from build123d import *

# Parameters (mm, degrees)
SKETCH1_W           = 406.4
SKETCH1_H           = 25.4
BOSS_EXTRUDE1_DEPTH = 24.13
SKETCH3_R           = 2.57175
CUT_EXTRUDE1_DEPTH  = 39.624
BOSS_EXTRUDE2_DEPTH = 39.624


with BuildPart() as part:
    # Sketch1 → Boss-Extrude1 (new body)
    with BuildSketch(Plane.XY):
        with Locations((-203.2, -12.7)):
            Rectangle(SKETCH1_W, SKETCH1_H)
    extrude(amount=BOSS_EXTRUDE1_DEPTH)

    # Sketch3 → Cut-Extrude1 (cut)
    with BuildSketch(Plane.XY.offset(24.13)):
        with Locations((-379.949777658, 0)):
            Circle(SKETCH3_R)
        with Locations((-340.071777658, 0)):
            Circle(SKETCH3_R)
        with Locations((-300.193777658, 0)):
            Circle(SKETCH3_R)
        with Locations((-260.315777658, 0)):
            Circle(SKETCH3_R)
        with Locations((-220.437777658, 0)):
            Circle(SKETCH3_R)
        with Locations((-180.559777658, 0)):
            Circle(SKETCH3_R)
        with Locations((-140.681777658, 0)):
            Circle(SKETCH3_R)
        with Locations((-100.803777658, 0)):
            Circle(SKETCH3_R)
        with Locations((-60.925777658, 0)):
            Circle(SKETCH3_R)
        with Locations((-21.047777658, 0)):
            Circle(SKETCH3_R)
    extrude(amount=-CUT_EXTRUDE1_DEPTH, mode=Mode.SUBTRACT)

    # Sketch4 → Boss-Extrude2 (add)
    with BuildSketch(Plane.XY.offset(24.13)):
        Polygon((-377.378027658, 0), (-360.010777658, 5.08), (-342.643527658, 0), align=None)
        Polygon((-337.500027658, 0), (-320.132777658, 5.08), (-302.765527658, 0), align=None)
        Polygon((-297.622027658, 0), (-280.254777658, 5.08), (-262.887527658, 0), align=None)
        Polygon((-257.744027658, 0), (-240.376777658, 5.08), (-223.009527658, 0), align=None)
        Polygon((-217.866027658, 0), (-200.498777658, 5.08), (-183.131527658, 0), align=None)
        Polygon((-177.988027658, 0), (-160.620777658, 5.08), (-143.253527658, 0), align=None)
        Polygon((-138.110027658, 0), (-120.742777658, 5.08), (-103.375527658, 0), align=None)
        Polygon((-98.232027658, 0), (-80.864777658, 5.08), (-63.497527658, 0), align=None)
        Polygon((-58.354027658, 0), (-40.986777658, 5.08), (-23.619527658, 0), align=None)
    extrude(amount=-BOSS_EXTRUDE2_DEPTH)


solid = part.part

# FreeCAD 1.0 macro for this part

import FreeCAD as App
import Part
import Sketcher
Q = App.Units.Quantity


def add_polygon(sketch, points):
    """Adds a closed chain of lines whose ends are joined by coincident constraints."""
    first, n = sketch.GeometryCount, len(points)
    for a, b in zip(points, points[1:] + points[:1]):
        sketch.addGeometry(Part.LineSegment(App.Vector(*a, 0), App.Vector(*b, 0)), False)
    for i in range(n):
        sketch.addConstraint(Sketcher.Constraint("Coincident", first + i, 2, first + (i + 1) % n, 1))

doc = App.newDocument("Part")
body = doc.addObject("PartDesign::Body", "Body")

sketch1 = body.newObject("Sketcher::SketchObject", "Sketch")
sketch1.AttachmentSupport = (doc.getObject("XY_Plane"), [""])
sketch1.MapMode = "FlatFace"
add_polygon(sketch1, [(-406.4, 0), (-406.4, -25.4), (0, -25.4), (0, 0)])
sketch1.addConstraint([
    Sketcher.Constraint("Vertical", 0),
    Sketcher.Constraint("Horizontal", 1),
    Sketcher.Constraint("Vertical", 2),
    Sketcher.Constraint("Horizontal", 3),
    Sketcher.Constraint("Coincident", 2, 2, -1, 1),
    Sketcher.Constraint("DistanceX", 1, 1, 1, 2, Q("16 in")),
    Sketcher.Constraint("DistanceY", 0, 2, 0, 1, Q("1 in")),
])
pad1 = body.newObject("PartDesign::Pad", "Pad")
pad1.Profile = sketch1
pad1.Length = Q("0.95 in")

sketch2 = body.newObject("Sketcher::SketchObject", "Sketch001")
sketch2.AttachmentSupport = (doc.getObject("XY_Plane"), [""])
sketch2.MapMode = "FlatFace"
sketch2.AttachmentOffset = App.Placement(App.Vector(0, 0, 0.95 * 25.4), App.Rotation())
sketch2.addGeometry([
    Part.Circle(App.Vector(-379.949778, 0, 0), App.Vector(0, 0, 1), 2.57175),
    Part.Circle(App.Vector(-340.071778, 0, 0), App.Vector(0, 0, 1), 2.57175),
    Part.Circle(App.Vector(-300.193778, 0, 0), App.Vector(0, 0, 1), 2.57175),
    Part.Circle(App.Vector(-260.315778, 0, 0), App.Vector(0, 0, 1), 2.57175),
    Part.Circle(App.Vector(-220.437778, 0, 0), App.Vector(0, 0, 1), 2.57175),
    Part.Circle(App.Vector(-180.559778, 0, 0), App.Vector(0, 0, 1), 2.57175),
    Part.Circle(App.Vector(-140.681778, 0, 0), App.Vector(0, 0, 1), 2.57175),
    Part.Circle(App.Vector(-100.803778, 0, 0), App.Vector(0, 0, 1), 2.57175),
    Part.Circle(App.Vector(-60.925778, 0, 0), App.Vector(0, 0, 1), 2.57175),
    Part.Circle(App.Vector(-21.047778, 0, 0), App.Vector(0, 0, 1), 2.57175),
], False)
sketch2.addConstraint([
    Sketcher.Constraint("Equal", 0, 1),
    Sketcher.Constraint("Equal", 1, 2),
    Sketcher.Constraint("Equal", 2, 3),
    Sketcher.Constraint("Equal", 3, 4),
    Sketcher.Constraint("Equal", 4, 5),
    Sketcher.Constraint("Equal", 5, 6),
    Sketcher.Constraint("Equal", 6, 7),
    Sketcher.Constraint("Equal", 7, 8),
    Sketcher.Constraint("Equal", 8, 9),
    Sketcher.Constraint("PointOnObject", 0, 3, -1),
    Sketcher.Constraint("PointOnObject", 1, 3, -1),
    Sketcher.Constraint("PointOnObject", 2, 3, -1),
    Sketcher.Constraint("PointOnObject", 3, 3, -1),
    Sketcher.Constraint("PointOnObject", 4, 3, -1),
    Sketcher.Constraint("PointOnObject", 5, 3, -1),
    Sketcher.Constraint("PointOnObject", 6, 3, -1),
    Sketcher.Constraint("PointOnObject", 7, 3, -1),
    Sketcher.Constraint("PointOnObject", 8, 3, -1),
    Sketcher.Constraint("PointOnObject", 9, 3, -1),
    Sketcher.Constraint("Diameter", 0, Q("0.2025 in")),
    Sketcher.Constraint("DistanceX", 0, 3, 1, 3, Q("1.57 in")),
    Sketcher.Constraint("DistanceX", 1, 3, 2, 3, Q("1.57 in")),
    Sketcher.Constraint("DistanceX", 2, 3, 3, 3, Q("1.57 in")),
    Sketcher.Constraint("DistanceX", 3, 3, 4, 3, Q("1.57 in")),
    Sketcher.Constraint("DistanceX", 4, 3, 5, 3, Q("1.57 in")),
    Sketcher.Constraint("DistanceX", 5, 3, 6, 3, Q("1.57 in")),
    Sketcher.Constraint("DistanceX", 6, 3, 7, 3, Q("1.57 in")),
    Sketcher.Constraint("DistanceX", 7, 3, 8, 3, Q("1.57 in")),
    Sketcher.Constraint("DistanceX", 8, 3, 9, 3, Q("1.57 in")),
    Sketcher.Constraint("DistanceX", 0, 3, -1, 1, Q("379.949778 mm")),
])
pocket1 = body.newObject("PartDesign::Pocket", "Pocket")
pocket1.Profile = sketch2
pocket1.Length = Q("1.56 in")

sketch3 = body.newObject("Sketcher::SketchObject", "Sketch002")
sketch3.AttachmentSupport = (doc.getObject("XY_Plane"), [""])
sketch3.MapMode = "FlatFace"
sketch3.AttachmentOffset = App.Placement(App.Vector(0, 0, 0.95 * 25.4), App.Rotation())
add_polygon(sketch3, [(-360.010778, 5.08), (-377.378028, 0), (-342.643528, 0)])
add_polygon(sketch3, [(-320.132778, 5.08), (-337.500028, 0), (-302.765528, 0)])
add_polygon(sketch3, [(-280.254778, 5.08), (-297.622028, 0), (-262.887528, 0)])
add_polygon(sketch3, [(-240.376778, 5.08), (-257.744028, 0), (-223.009528, 0)])
add_polygon(sketch3, [(-200.498778, 5.08), (-217.866028, 0), (-183.131528, 0)])
add_polygon(sketch3, [(-160.620778, 5.08), (-177.988028, 0), (-143.253528, 0)])
add_polygon(sketch3, [(-120.742778, 5.08), (-138.110028, 0), (-103.375528, 0)])
add_polygon(sketch3, [(-80.864778, 5.08), (-98.232028, 0), (-63.497528, 0)])
add_polygon(sketch3, [(-40.986778, 5.08), (-58.354028, 0), (-23.619528, 0)])
sketch3.addConstraint([
    Sketcher.Constraint("Horizontal", 1),
    Sketcher.Constraint("Horizontal", 4),
    Sketcher.Constraint("Horizontal", 7),
    Sketcher.Constraint("Horizontal", 10),
    Sketcher.Constraint("Horizontal", 13),
    Sketcher.Constraint("Horizontal", 16),
    Sketcher.Constraint("Horizontal", 19),
    Sketcher.Constraint("Horizontal", 22),
    Sketcher.Constraint("Horizontal", 25),
    Sketcher.Constraint("PointOnObject", 0, 2, -1),
    Sketcher.Constraint("PointOnObject", 3, 2, -1),
    Sketcher.Constraint("PointOnObject", 6, 2, -1),
    Sketcher.Constraint("PointOnObject", 9, 2, -1),
    Sketcher.Constraint("PointOnObject", 12, 2, -1),
    Sketcher.Constraint("PointOnObject", 15, 2, -1),
    Sketcher.Constraint("PointOnObject", 18, 2, -1),
    Sketcher.Constraint("PointOnObject", 21, 2, -1),
    Sketcher.Constraint("PointOnObject", 24, 2, -1),
    Sketcher.Constraint("Parallel", 0, 3),
    Sketcher.Constraint("Parallel", 2, 5),
    Sketcher.Constraint("Parallel", 3, 6),
    Sketcher.Constraint("Parallel", 5, 8),
    Sketcher.Constraint("Parallel", 6, 9),
    Sketcher.Constraint("Parallel", 8, 11),
    Sketcher.Constraint("Parallel", 9, 12),
    Sketcher.Constraint("Parallel", 11, 14),
    Sketcher.Constraint("Parallel", 12, 15),
    Sketcher.Constraint("Parallel", 14, 17),
    Sketcher.Constraint("Parallel", 15, 18),
    Sketcher.Constraint("Parallel", 17, 20),
    Sketcher.Constraint("Parallel", 18, 21),
    Sketcher.Constraint("Parallel", 20, 23),
    Sketcher.Constraint("Parallel", 21, 24),
    Sketcher.Constraint("Parallel", 23, 26),
    Sketcher.Constraint("Horizontal", 2, 2, 5, 2),
    Sketcher.Constraint("Horizontal", 5, 2, 8, 2),
    Sketcher.Constraint("Horizontal", 8, 2, 11, 2),
    Sketcher.Constraint("Horizontal", 11, 2, 14, 2),
    Sketcher.Constraint("Horizontal", 14, 2, 17, 2),
    Sketcher.Constraint("Horizontal", 17, 2, 20, 2),
    Sketcher.Constraint("Horizontal", 20, 2, 23, 2),
    Sketcher.Constraint("Horizontal", 23, 2, 26, 2),
    Sketcher.Constraint("Equal", 0, 2),
    Sketcher.Constraint("DistanceY", -1, 1, 2, 2, Q("0.2 in")),
    Sketcher.Constraint("DistanceX", 0, 2, 3, 2, Q("1.57 in")),
    Sketcher.Constraint("DistanceX", 3, 2, 6, 2, Q("1.57 in")),
    Sketcher.Constraint("DistanceX", 6, 2, 9, 2, Q("1.57 in")),
    Sketcher.Constraint("DistanceX", 9, 2, 12, 2, Q("1.57 in")),
    Sketcher.Constraint("DistanceX", 12, 2, 15, 2, Q("1.57 in")),
    Sketcher.Constraint("DistanceX", 15, 2, 18, 2, Q("1.57 in")),
    Sketcher.Constraint("DistanceX", 18, 2, 21, 2, Q("1.57 in")),
    Sketcher.Constraint("DistanceX", 21, 2, 24, 2, Q("1.57 in")),
    Sketcher.Constraint("DistanceX", 1, 1, 1, 2, Q("1.3675 in")),
    Sketcher.Constraint("DistanceX", 0, 2, -1, 1, Q("377.378028 mm")),
])
pad2 = body.newObject("PartDesign::Pad", "Pad001")
pad2.Profile = sketch3
pad2.Length = Q("1.56 in")
pad2.Reversed = True

doc.recompute()
